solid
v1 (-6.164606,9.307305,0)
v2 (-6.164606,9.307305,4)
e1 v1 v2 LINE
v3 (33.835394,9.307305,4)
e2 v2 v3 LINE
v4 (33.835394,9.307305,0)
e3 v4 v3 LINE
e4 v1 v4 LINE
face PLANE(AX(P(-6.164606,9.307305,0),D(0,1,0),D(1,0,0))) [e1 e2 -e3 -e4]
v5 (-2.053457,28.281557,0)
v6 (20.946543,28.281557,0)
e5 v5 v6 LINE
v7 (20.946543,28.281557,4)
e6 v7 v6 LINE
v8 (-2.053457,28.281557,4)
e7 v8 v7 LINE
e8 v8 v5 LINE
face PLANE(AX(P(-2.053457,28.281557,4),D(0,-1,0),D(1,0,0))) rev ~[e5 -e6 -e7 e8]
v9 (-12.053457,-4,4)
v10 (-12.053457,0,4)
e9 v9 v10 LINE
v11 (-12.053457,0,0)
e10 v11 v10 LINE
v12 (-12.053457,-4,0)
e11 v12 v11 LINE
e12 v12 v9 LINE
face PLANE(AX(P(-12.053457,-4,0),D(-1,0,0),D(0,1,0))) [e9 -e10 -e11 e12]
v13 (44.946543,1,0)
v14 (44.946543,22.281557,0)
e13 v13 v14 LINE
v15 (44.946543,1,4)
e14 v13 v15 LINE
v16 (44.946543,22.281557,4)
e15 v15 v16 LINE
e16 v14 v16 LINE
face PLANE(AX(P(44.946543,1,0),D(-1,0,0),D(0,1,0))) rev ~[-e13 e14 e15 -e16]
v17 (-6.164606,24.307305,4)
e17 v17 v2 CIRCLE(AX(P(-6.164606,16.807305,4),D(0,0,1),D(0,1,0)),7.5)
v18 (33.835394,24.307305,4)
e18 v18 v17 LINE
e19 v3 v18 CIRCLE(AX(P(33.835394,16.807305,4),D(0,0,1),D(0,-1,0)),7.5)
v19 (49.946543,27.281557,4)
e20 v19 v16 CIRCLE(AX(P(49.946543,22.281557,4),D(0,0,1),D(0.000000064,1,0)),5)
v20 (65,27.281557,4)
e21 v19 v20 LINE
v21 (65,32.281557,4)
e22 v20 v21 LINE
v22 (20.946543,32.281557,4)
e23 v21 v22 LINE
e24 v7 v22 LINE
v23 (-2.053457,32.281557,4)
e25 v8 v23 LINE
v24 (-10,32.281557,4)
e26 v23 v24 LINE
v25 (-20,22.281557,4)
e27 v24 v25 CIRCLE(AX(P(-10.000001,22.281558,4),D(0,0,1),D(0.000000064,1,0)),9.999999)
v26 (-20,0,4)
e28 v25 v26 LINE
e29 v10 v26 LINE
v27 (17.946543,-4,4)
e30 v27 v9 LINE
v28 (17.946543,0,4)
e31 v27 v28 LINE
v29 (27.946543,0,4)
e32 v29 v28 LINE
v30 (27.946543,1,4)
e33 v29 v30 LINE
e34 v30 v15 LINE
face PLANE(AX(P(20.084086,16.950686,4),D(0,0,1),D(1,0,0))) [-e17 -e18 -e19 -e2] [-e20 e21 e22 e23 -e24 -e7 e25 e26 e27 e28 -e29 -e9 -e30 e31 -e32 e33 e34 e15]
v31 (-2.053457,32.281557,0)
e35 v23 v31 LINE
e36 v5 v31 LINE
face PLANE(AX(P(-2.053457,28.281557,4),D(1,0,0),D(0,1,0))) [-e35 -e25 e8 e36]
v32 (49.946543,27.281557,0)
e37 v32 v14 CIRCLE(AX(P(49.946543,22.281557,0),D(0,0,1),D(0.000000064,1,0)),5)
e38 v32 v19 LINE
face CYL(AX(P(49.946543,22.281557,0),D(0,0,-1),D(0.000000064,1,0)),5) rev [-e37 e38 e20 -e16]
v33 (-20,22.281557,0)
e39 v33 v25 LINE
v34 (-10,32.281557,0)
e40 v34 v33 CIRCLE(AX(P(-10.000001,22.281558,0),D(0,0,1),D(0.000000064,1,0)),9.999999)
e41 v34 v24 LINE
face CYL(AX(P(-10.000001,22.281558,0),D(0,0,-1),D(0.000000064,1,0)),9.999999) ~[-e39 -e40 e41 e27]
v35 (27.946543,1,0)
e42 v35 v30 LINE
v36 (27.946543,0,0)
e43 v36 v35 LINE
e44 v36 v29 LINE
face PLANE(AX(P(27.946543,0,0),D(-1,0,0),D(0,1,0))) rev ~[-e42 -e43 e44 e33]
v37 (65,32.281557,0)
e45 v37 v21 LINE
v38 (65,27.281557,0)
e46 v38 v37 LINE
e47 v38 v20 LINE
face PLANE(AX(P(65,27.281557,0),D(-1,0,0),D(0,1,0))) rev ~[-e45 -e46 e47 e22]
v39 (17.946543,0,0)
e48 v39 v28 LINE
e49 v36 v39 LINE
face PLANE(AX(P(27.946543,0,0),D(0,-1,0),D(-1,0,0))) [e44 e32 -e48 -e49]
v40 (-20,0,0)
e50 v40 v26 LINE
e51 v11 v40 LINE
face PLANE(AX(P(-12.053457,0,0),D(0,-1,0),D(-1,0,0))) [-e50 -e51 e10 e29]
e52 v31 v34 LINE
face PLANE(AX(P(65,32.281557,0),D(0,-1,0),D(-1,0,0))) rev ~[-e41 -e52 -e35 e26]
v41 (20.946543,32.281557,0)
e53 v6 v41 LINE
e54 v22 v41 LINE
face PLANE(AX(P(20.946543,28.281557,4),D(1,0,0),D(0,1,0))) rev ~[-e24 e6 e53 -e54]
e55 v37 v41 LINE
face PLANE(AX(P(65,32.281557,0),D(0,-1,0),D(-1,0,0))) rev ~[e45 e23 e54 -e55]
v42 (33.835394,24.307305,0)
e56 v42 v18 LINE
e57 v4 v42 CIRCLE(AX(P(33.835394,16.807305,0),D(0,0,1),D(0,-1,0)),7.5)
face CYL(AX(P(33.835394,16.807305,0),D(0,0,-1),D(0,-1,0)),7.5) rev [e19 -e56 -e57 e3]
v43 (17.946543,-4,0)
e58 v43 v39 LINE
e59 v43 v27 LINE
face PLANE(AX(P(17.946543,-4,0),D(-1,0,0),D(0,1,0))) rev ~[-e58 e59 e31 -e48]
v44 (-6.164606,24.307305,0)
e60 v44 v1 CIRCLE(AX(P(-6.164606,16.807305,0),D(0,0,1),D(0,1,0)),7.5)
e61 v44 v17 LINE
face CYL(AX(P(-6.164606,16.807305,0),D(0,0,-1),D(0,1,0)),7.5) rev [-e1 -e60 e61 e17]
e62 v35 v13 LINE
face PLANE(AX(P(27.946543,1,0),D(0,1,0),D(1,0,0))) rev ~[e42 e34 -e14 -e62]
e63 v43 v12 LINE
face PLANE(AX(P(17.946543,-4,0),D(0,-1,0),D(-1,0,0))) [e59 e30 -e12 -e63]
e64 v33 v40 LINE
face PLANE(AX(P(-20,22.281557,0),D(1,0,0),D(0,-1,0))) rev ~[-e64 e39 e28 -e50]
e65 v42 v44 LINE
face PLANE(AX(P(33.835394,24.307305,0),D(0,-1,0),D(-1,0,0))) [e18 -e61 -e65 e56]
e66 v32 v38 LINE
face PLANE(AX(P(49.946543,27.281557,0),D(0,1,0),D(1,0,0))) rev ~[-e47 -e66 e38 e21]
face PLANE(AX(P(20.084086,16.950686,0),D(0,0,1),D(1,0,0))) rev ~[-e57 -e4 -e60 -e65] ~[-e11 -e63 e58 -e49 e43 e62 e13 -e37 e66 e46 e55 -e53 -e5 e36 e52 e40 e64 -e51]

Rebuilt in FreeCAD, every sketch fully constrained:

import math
import FreeCAD as App
import Part
import Sketcher
from FreeCAD import Vector
Q = App.Units.Quantity

doc = App.newDocument("Part")
params = doc.addObject("Spreadsheet::Sheet", "Params")
for row, (alias, value) in enumerate([
    ("sketch1_radius", "9.999999 mm"),
    ("sketch1_radius2", "5 mm"),
    ("sketch1_radius3", "7.5 mm"),
    ("sketch1_width", "75 mm"),
    ("sketch1_width2", "30 mm"),
    ("pad1_length", "4 mm"),
    ("sketch2_width", "23 mm"),
    ("sketch2_height", "4 mm"),
    ("pocket1_length", "5 mm"),
], start=1):
    params.set(f"A{row}", alias)
    params.set(f"B{row}", "=" + value)
    params.setAlias(f"B{row}", alias)

body = doc.addObject("PartDesign::Body", "Body")

# Sketch on XY plane
sketch1 = body.newObject("Sketcher::SketchObject", "Sketch")
sketch1.AttachmentSupport = (doc.getObject("XY_Plane"), [""])
sketch1.MapMode = "FlatFace"
sketch1.addGeometry([
    Part.LineSegment(Vector(65, 32.3, 0), Vector(-10, 32.3, 0)),  # 0
    Part.ArcOfCircle(Part.Circle(Vector(-10, 22.3, 0), Vector(0, 0, 1), 10), math.radians(90), math.radians(180)),  # 1
    Part.LineSegment(Vector(-20, 22.3, 0), Vector(-20, 0, 0)),  # 2
    Part.LineSegment(Vector(-20, 0, 0), Vector(-12.1, 0, 0)),  # 3
    Part.LineSegment(Vector(-12.1, 0, 0), Vector(-12.1, -4, 0)),  # 4
    Part.LineSegment(Vector(-12.1, -4, 0), Vector(17.9, -4, 0)),  # 5
    Part.LineSegment(Vector(17.9, -4, 0), Vector(17.9, 0, 0)),  # 6
    Part.LineSegment(Vector(17.9, 0, 0), Vector(27.9, 0, 0)),  # 7
    Part.LineSegment(Vector(27.9, 0, 0), Vector(27.9, 1, 0)),  # 8
    Part.LineSegment(Vector(27.9, 1, 0), Vector(44.9, 1, 0)),  # 9
    Part.LineSegment(Vector(44.9, 1, 0), Vector(44.9, 22.3, 0)),  # 10
    Part.ArcOfCircle(Part.Circle(Vector(49.9, 22.3, 0), Vector(0, 0, 1), 5), math.radians(90), math.radians(180)),  # 11
    Part.LineSegment(Vector(49.9, 27.3, 0), Vector(65, 27.3, 0)),  # 12
    Part.LineSegment(Vector(65, 27.3, 0), Vector(65, 32.3, 0)),  # 13
    Part.ArcOfCircle(Part.Circle(Vector(-6.2, 16.8, 0), Vector(0, 0, 1), 7.5), math.radians(90), math.radians(270)),  # 14
    Part.LineSegment(Vector(-6.2, 24.3, 0), Vector(33.8, 24.3, 0)),  # 15
    Part.ArcOfCircle(Part.Circle(Vector(33.8, 16.8, 0), Vector(0, 0, 1), 7.5), math.radians(-90), math.radians(90)),  # 16
    Part.LineSegment(Vector(33.8, 9.3, 0), Vector(-6.2, 9.3, 0)),  # 17
], False)
sketch1.addConstraint([
    Sketcher.Constraint("Tangent", 0, 2, 1, 1),
    Sketcher.Constraint("Tangent", 1, 2, 2, 1),
    Sketcher.Constraint("Coincident", 2, 2, 3, 1),
    Sketcher.Constraint("Coincident", 3, 2, 4, 1),
    Sketcher.Constraint("Coincident", 4, 2, 5, 1),
    Sketcher.Constraint("Coincident", 5, 2, 6, 1),
    Sketcher.Constraint("Coincident", 6, 2, 7, 1),
    Sketcher.Constraint("Coincident", 7, 2, 8, 1),
    Sketcher.Constraint("Coincident", 8, 2, 9, 1),
    Sketcher.Constraint("Coincident", 9, 2, 10, 1),
    Sketcher.Constraint("Tangent", 10, 2, 11, 2),
    Sketcher.Constraint("Tangent", 11, 1, 12, 1),
    Sketcher.Constraint("Coincident", 12, 2, 13, 1),
    Sketcher.Constraint("Coincident", 13, 2, 0, 1),
    Sketcher.Constraint("Tangent", 14, 1, 15, 1),
    Sketcher.Constraint("Tangent", 15, 2, 16, 2),
    Sketcher.Constraint("Tangent", 16, 1, 17, 1),
    Sketcher.Constraint("Tangent", 17, 2, 14, 2),
    Sketcher.Constraint("Horizontal", 0),
    Sketcher.Constraint("Vertical", 2),
    Sketcher.Constraint("Horizontal", 3),
    Sketcher.Constraint("Vertical", 4),
    Sketcher.Constraint("Horizontal", 5),
    Sketcher.Constraint("Vertical", 6),
    Sketcher.Constraint("Horizontal", 7),
    Sketcher.Constraint("Vertical", 8),
    Sketcher.Constraint("Horizontal", 9),
    Sketcher.Constraint("Vertical", 10),
    Sketcher.Constraint("Horizontal", 12),
    Sketcher.Constraint("Vertical", 13),
    Sketcher.Constraint("Horizontal", 15),
    Sketcher.Constraint("Horizontal", 17),
    Sketcher.Constraint("PointOnObject", 2, 2, -1),
    Sketcher.Constraint("PointOnObject", 6, 2, -1),
    Sketcher.Constraint("Horizontal", 1, 3, 11, 3),
    Sketcher.Constraint("Radius", 1, Q("9.999999 mm")),
    Sketcher.Constraint("Radius", 11, Q("5 mm")),
    Sketcher.Constraint("Radius", 14, Q("7.5 mm")),
    Sketcher.Constraint("DistanceX", 0, 2, 0, 1, Q("75 mm")),
    Sketcher.Constraint("DistanceX", 5, 1, 5, 2, Q("30 mm")),
    Sketcher.Constraint("DistanceX", 7, 1, 7, 2, Q("10 mm")),
    Sketcher.Constraint("DistanceX", 9, 1, 9, 2, Q("17 mm")),
    Sketcher.Constraint("DistanceX", 15, 1, 15, 2, Q("40 mm")),
    Sketcher.Constraint("DistanceY", 4, 2, 4, 1, Q("4 mm")),
    Sketcher.Constraint("DistanceY", 8, 1, 8, 2, Q("1 mm")),
    Sketcher.Constraint("DistanceX", 1, 3, -1, 1, Q("10.000001 mm")),
    Sketcher.Constraint("DistanceX", 3, 1, 3, 2, Q("7.946543 mm")),
    Sketcher.Constraint("DistanceY", 2, 2, 2, 1, Q("22.281557 mm")),
    Sketcher.Constraint("DistanceX", 14, 3, 11, 3, Q("56.111149 mm")),
    Sketcher.Constraint("DistanceY", 16, 3, 11, 1, Q("10.474252 mm")),
])
sketch1.setExpression("Constraints[35]", "Params.sketch1_radius")
sketch1.setExpression("Constraints[36]", "Params.sketch1_radius2")
sketch1.setExpression("Constraints[37]", "Params.sketch1_radius3")
sketch1.setExpression("Constraints[38]", "Params.sketch1_width")
sketch1.setExpression("Constraints[39]", "Params.sketch1_width2")
pad1 = body.newObject("PartDesign::Pad", "Pad")
pad1.Profile = sketch1
pad1.setExpression("Length", "Params.pad1_length")

# Sketch on XY plane
sketch2 = body.newObject("Sketcher::SketchObject", "Sketch001")
sketch2.AttachmentSupport = (doc.getObject("XY_Plane"), [""])
sketch2.MapMode = "FlatFace"
sketch2.AttachmentOffset = App.Placement(Vector(0, 0, 4), App.Rotation())
sketch2.addGeometry([
    Part.LineSegment(Vector(-2.1, 32.3, 0), Vector(-2.1, 28.3, 0)),
    Part.LineSegment(Vector(-2.1, 28.3, 0), Vector(20.9, 28.3, 0)),
    Part.LineSegment(Vector(20.9, 28.3, 0), Vector(20.9, 32.3, 0)),
    Part.LineSegment(Vector(20.9, 32.3, 0), Vector(-2.1, 32.3, 0)),
], False)
sketch2.addConstraint([
    Sketcher.Constraint("Coincident", 0, 2, 1, 1),
    Sketcher.Constraint("Coincident", 1, 2, 2, 1),
    Sketcher.Constraint("Coincident", 2, 2, 3, 1),
    Sketcher.Constraint("Coincident", 3, 2, 0, 1),
    Sketcher.Constraint("Vertical", 0),
    Sketcher.Constraint("Horizontal", 1),
    Sketcher.Constraint("Vertical", 2),
    Sketcher.Constraint("Horizontal", 3),
    Sketcher.Constraint("DistanceX", 1, 1, 1, 2, Q("23 mm")),
    Sketcher.Constraint("DistanceY", 0, 2, 0, 1, Q("4 mm")),
    Sketcher.Constraint("DistanceX", 0, 2, -1, 1, Q("2.053457 mm")),
    Sketcher.Constraint("DistanceY", -1, 1, 0, 2, Q("28.281557 mm")),
])
sketch2.setExpression("Constraints[8]", "Params.sketch2_width")
sketch2.setExpression("Constraints[9]", "Params.sketch2_height")
pocket1 = body.newObject("PartDesign::Pocket", "Pocket")
pocket1.Profile = sketch2
pocket1.setExpression("Length", "Params.pocket1_length")

doc.recompute()
